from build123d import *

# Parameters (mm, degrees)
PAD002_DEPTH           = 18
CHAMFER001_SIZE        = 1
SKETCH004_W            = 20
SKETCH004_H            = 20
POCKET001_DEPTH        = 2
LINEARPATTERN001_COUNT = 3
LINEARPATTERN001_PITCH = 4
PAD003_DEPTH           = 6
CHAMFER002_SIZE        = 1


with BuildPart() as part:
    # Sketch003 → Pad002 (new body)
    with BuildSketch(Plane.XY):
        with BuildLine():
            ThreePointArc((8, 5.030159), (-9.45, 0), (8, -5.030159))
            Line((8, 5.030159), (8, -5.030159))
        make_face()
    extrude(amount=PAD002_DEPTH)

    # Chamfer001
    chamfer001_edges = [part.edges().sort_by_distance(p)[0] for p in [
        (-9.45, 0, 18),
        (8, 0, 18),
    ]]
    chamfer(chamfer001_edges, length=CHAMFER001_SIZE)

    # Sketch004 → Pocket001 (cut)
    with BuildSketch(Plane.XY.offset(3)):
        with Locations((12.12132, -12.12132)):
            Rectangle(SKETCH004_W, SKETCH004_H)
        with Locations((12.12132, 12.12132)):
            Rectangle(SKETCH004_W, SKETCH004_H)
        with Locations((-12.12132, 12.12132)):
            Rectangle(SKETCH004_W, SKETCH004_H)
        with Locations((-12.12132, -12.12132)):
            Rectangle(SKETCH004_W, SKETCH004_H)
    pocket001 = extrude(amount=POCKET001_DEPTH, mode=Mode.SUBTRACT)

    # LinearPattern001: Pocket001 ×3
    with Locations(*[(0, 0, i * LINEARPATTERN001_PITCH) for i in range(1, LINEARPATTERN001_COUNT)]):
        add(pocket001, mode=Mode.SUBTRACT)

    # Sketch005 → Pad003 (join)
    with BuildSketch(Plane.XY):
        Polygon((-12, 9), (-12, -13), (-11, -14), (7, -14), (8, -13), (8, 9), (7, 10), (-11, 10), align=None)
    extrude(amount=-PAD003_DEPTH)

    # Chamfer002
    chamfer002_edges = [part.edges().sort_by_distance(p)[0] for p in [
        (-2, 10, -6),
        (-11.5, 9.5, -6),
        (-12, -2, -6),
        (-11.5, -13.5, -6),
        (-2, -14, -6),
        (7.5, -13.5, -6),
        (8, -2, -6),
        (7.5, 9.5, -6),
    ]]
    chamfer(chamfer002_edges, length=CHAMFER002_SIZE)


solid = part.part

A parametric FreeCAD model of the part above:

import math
import FreeCAD as App
import Part
import Sketcher
Q = App.Units.Quantity


def edges_at(feature, points):
    """Names of the edges that pass closest to the given points."""
    edges = feature.Shape.Edges
    near = lambda p: min(range(len(edges)), key=lambda i: edges[i].distToShape(Part.Vertex(*p))[0])
    return sorted({f"Edge{near(p) + 1}" for p in points})

doc = App.newDocument("Part")
body = doc.addObject("PartDesign::Body", "Body")

sketch1 = doc.addObject("Sketcher::SketchObject", "Sketch")
body.addObject(sketch1)
sketch1.AttachmentSupport = (doc.XY_Plane, [""])
sketch1.MapMode = "FlatFace"
sketch1.addGeometry(Part.ArcOfCircle(Part.Circle(App.Vector(0, 0, 0), App.Vector(0, 0, 1), 9), math.radians(32), math.radians(328)), False)
sketch1.addGeometry(Part.LineSegment(App.Vector(8, -5, 0), App.Vector(8, 5, 0)), False)
sketch1.addConstraint(Sketcher.Constraint("Coincident", 0, 1, 1, 2))
sketch1.addConstraint(Sketcher.Constraint("Coincident", 1, 1, 0, 2))
sketch1.addConstraint(Sketcher.Constraint("Vertical", 1))
sketch1.addConstraint(Sketcher.Constraint("Coincident", 0, 3, -1, 1))
sketch1.addConstraint(Sketcher.Constraint("Radius", 0, Q("9.45 mm")))
sketch1.addConstraint(Sketcher.Constraint("DistanceX", -1, 1, 0, 1, Q("8 mm")))
pad1 = doc.addObject("PartDesign::Pad", "Pad")
body.addObject(pad1)
pad1.Profile = sketch1
pad1.Length = 18
doc.recompute()

chamfer = doc.addObject("PartDesign::Chamfer", "Chamfer")
body.addObject(chamfer)
chamfer.Base = (pad1, edges_at(pad1, [(-9.45, 0, 18), (8, 0, 18)]))
chamfer.Size = 1

sketch2 = doc.addObject("Sketcher::SketchObject", "Sketch001")
body.addObject(sketch2)
sketch2.AttachmentSupport = (doc.XY_Plane, [""])
sketch2.MapMode = "FlatFace"
sketch2.AttachmentOffset = App.Placement(App.Vector(0, 0, 3), App.Rotation())
sketch2.addGeometry(Part.LineSegment(App.Vector(2, -2, 0), App.Vector(2, -22, 0)), False)
sketch2.addGeometry(Part.LineSegment(App.Vector(2, -22, 0), App.Vector(22, -22, 0)), False)
sketch2.addGeometry(Part.LineSegment(App.Vector(22, -22, 0), App.Vector(22, -2, 0)), False)
sketch2.addGeometry(Part.LineSegment(App.Vector(22, -2, 0), App.Vector(2, -2, 0)), False)
sketch2.addGeometry(Part.LineSegment(App.Vector(2, 22, 0), App.Vector(2, 2, 0)), False)
sketch2.addGeometry(Part.LineSegment(App.Vector(2, 2, 0), App.Vector(22, 2, 0)), False)
sketch2.addGeometry(Part.LineSegment(App.Vector(22, 2, 0), App.Vector(22, 22, 0)), False)
sketch2.addGeometry(Part.LineSegment(App.Vector(22, 22, 0), App.Vector(2, 22, 0)), False)
sketch2.addGeometry(Part.LineSegment(App.Vector(-22, 22, 0), App.Vector(-22, 2, 0)), False)
sketch2.addGeometry(Part.LineSegment(App.Vector(-22, 2, 0), App.Vector(-2, 2, 0)), False)
sketch2.addGeometry(Part.LineSegment(App.Vector(-2, 2, 0), App.Vector(-2, 22, 0)), False)
sketch2.addGeometry(Part.LineSegment(App.Vector(-2, 22, 0), App.Vector(-22, 22, 0)), False)
sketch2.addGeometry(Part.LineSegment(App.Vector(-22, -2, 0), App.Vector(-22, -22, 0)), False)
sketch2.addGeometry(Part.LineSegment(App.Vector(-22, -22, 0), App.Vector(-2, -22, 0)), False)
sketch2.addGeometry(Part.LineSegment(App.Vector(-2, -22, 0), App.Vector(-2, -2, 0)), False)
sketch2.addGeometry(Part.LineSegment(App.Vector(-2, -2, 0), App.Vector(-22, -2, 0)), False)
sketch2.addConstraint(Sketcher.Constraint("Coincident", 0, 2, 1, 1))
sketch2.addConstraint(Sketcher.Constraint("Coincident", 1, 2, 2, 1))
sketch2.addConstraint(Sketcher.Constraint("Coincident", 2, 2, 3, 1))
sketch2.addConstraint(Sketcher.Constraint("Coincident", 3, 2, 0, 1))
sketch2.addConstraint(Sketcher.Constraint("Coincident", 4, 2, 5, 1))
sketch2.addConstraint(Sketcher.Constraint("Coincident", 5, 2, 6, 1))
sketch2.addConstraint(Sketcher.Constraint("Coincident", 6, 2, 7, 1))
sketch2.addConstraint(Sketcher.Constraint("Coincident", 7, 2, 4, 1))
sketch2.addConstraint(Sketcher.Constraint("Coincident", 8, 2, 9, 1))
sketch2.addConstraint(Sketcher.Constraint("Coincident", 9, 2, 10, 1))
sketch2.addConstraint(Sketcher.Constraint("Coincident", 10, 2, 11, 1))
sketch2.addConstraint(Sketcher.Constraint("Coincident", 11, 2, 8, 1))
sketch2.addConstraint(Sketcher.Constraint("Coincident", 12, 2, 13, 1))
sketch2.addConstraint(Sketcher.Constraint("Coincident", 13, 2, 14, 1))
sketch2.addConstraint(Sketcher.Constraint("Coincident", 14, 2, 15, 1))
sketch2.addConstraint(Sketcher.Constraint("Coincident", 15, 2, 12, 1))
sketch2.addConstraint(Sketcher.Constraint("Vertical", 0))
sketch2.addConstraint(Sketcher.Constraint("Horizontal", 1))
sketch2.addConstraint(Sketcher.Constraint("Vertical", 2))
sketch2.addConstraint(Sketcher.Constraint("Horizontal", 3))
sketch2.addConstraint(Sketcher.Constraint("Vertical", 4))
sketch2.addConstraint(Sketcher.Constraint("Horizontal", 5))
sketch2.addConstraint(Sketcher.Constraint("Vertical", 6))
sketch2.addConstraint(Sketcher.Constraint("Horizontal", 7))
sketch2.addConstraint(Sketcher.Constraint("Vertical", 8))
sketch2.addConstraint(Sketcher.Constraint("Horizontal", 9))
sketch2.addConstraint(Sketcher.Constraint("Vertical", 10))
sketch2.addConstraint(Sketcher.Constraint("Horizontal", 11))
sketch2.addConstraint(Sketcher.Constraint("Vertical", 12))
sketch2.addConstraint(Sketcher.Constraint("Horizontal", 13))
sketch2.addConstraint(Sketcher.Constraint("Vertical", 14))
sketch2.addConstraint(Sketcher.Constraint("Horizontal", 15))
sketch2.addConstraint(Sketcher.Constraint("Symmetric", 2, 2, 8, 2, -1, 1))
sketch2.addConstraint(Sketcher.Constraint("Symmetric", 0, 2, 10, 2, -1, 1))
sketch2.addConstraint(Sketcher.Constraint("Symmetric", 6, 2, 12, 2, -1, 1))
sketch2.addConstraint(Sketcher.Constraint("Symmetric", 4, 2, 14, 2, -1, 1))
sketch2.addConstraint(Sketcher.Constraint("Symmetric", 5, 2, 8, 2, -2))
sketch2.addConstraint(Sketcher.Constraint("Symmetric", 7, 2, 10, 2, -2))
sketch2.addConstraint(Sketcher.Constraint("Equal", 15, 0))
sketch2.addConstraint(Sketcher.Constraint("DistanceX", 1, 1, 1, 2, Q("20 mm")))
sketch2.addConstraint(Sketcher.Constraint("DistanceX", -1, 1, 0, 2, Q("2.12132 mm")))
sketch2.addConstraint(Sketcher.Constraint("DistanceY", 0, 2, -1, 1, Q("22.12132 mm")))
pocket1 = doc.addObject("PartDesign::Pocket", "Pocket")
body.addObject(pocket1)
pocket1.Profile = sketch2
pocket1.Length = 2
pocket1.Reversed = True
doc.recompute()

linearpattern = doc.addObject("PartDesign::LinearPattern", "LinearPattern")
body.addObject(linearpattern)
linearpattern.Originals = [pocket1]
linearpattern.Direction = (doc.Z_Axis, [""])
linearpattern.Mode = "offset"
linearpattern.Offset = 4
linearpattern.Occurrences = 3
body.Tip = linearpattern

sketch3 = doc.addObject("Sketcher::SketchObject", "Sketch002")
body.addObject(sketch3)
sketch3.AttachmentSupport = (doc.XY_Plane, [""])
sketch3.MapMode = "FlatFace"
sketch3.addGeometry(Part.LineSegment(App.Vector(-12, 9, 0), App.Vector(-12, -13, 0)), False)
sketch3.addGeometry(Part.LineSegment(App.Vector(-12, -13, 0), App.Vector(-11, -14, 0)), False)
sketch3.addGeometry(Part.LineSegment(App.Vector(-11, -14, 0), App.Vector(7, -14, 0)), False)
sketch3.addGeometry(Part.LineSegment(App.Vector(7, -14, 0), App.Vector(8, -13, 0)), False)
sketch3.addGeometry(Part.LineSegment(App.Vector(8, -13, 0), App.Vector(8, 9, 0)), False)
sketch3.addGeometry(Part.LineSegment(App.Vector(8, 9, 0), App.Vector(7, 10, 0)), False)
sketch3.addGeometry(Part.LineSegment(App.Vector(7, 10, 0), App.Vector(-11, 10, 0)), False)
sketch3.addGeometry(Part.LineSegment(App.Vector(-11, 10, 0), App.Vector(-12, 9, 0)), False)
sketch3.addConstraint(Sketcher.Constraint("Coincident", 0, 2, 1, 1))
sketch3.addConstraint(Sketcher.Constraint("Coincident", 1, 2, 2, 1))
sketch3.addConstraint(Sketcher.Constraint("Coincident", 2, 2, 3, 1))
sketch3.addConstraint(Sketcher.Constraint("Coincident", 3, 2, 4, 1))
sketch3.addConstraint(Sketcher.Constraint("Coincident", 4, 2, 5, 1))
sketch3.addConstraint(Sketcher.Constraint("Coincident", 5, 2, 6, 1))
sketch3.addConstraint(Sketcher.Constraint("Coincident", 6, 2, 7, 1))
sketch3.addConstraint(Sketcher.Constraint("Coincident", 7, 2, 0, 1))
sketch3.addConstraint(Sketcher.Constraint("Vertical", 0))
sketch3.addConstraint(Sketcher.Constraint("Horizontal", 2))
sketch3.addConstraint(Sketcher.Constraint("Vertical", 4))
sketch3.addConstraint(Sketcher.Constraint("Horizontal", 6))
sketch3.addConstraint(Sketcher.Constraint("Perpendicular", 1, 3))
sketch3.addConstraint(Sketcher.Constraint("Perpendicular", 3, 5))
sketch3.addConstraint(Sketcher.Constraint("Perpendicular", 5, 7))
sketch3.addConstraint(Sketcher.Constraint("Horizontal", 0, 2, 3, 2))
sketch3.addConstraint(Sketcher.Constraint("Horizontal", 4, 2, 7, 2))
sketch3.addConstraint(Sketcher.Constraint("Vertical", 2, 2, 5, 2))
sketch3.addConstraint(Sketcher.Constraint("Vertical", 1, 2, 6, 2))
sketch3.addConstraint(Sketcher.Constraint("DistanceX", 2, 1, 2, 2, Q("18 mm")))
sketch3.addConstraint(Sketcher.Constraint("DistanceY", 0, 2, 0, 1, Q("22 mm")))
sketch3.addConstraint(Sketcher.Constraint("DistanceX", 0, 2, -1, 1, Q("12 mm")))
sketch3.addConstraint(Sketcher.Constraint("DistanceY", 0, 2, -1, 1, Q("13 mm")))
sketch3.addConstraint(Sketcher.Constraint("DistanceX", 1, 2, -1, 1, Q("11 mm")))
pad2 = doc.addObject("PartDesign::Pad", "Pad001")
body.addObject(pad2)
pad2.Profile = sketch3
pad2.Length = 6
pad2.Reversed = True
doc.recompute()

chamfer2 = doc.addObject("PartDesign::Chamfer", "Chamfer001")
body.addObject(chamfer2)
chamfer2.Base = (pad2, edges_at(pad2, [
    (-2, 10, -6),
    (-11.5, 9.5, -6),
    (-12, -2, -6),
    (-11.5, -13.5, -6),
    (-2, -14, -6),
    (7.5, -13.5, -6),
    (8, -2, -6),
    (7.5, 9.5, -6),
]))
chamfer2.Size = 1

doc.recompute()
